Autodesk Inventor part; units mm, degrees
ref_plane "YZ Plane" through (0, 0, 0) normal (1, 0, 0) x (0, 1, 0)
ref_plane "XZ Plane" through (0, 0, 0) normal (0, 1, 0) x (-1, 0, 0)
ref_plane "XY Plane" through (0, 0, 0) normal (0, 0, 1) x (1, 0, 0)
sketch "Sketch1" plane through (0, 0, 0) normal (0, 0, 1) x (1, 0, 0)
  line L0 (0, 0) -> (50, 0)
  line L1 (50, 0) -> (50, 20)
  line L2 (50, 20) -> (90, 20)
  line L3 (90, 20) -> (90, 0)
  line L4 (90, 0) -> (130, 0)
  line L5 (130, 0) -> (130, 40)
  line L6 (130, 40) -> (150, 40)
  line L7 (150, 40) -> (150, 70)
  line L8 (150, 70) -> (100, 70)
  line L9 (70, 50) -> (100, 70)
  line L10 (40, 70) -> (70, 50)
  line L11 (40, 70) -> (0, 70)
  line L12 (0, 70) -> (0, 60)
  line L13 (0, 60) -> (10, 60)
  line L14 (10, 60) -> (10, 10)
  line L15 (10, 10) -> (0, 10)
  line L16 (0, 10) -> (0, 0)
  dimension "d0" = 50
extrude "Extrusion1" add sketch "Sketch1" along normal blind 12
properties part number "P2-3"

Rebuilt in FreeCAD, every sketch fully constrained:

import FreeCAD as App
import Part
import Sketcher

doc = App.newDocument("Part")
body = doc.addObject("PartDesign::Body", "Body")

# Sketch on XY plane
sketch1 = body.newObject("Sketcher::SketchObject", "Sketch")
sketch1.AttachmentSupport = (doc.getObject("XY_Plane"), [""])
sketch1.MapMode = "FlatFace"
sketch1.addGeometry([
    Part.LineSegment(App.Vector(0, 10, 0), App.Vector(0, 0, 0)),  # 0
    Part.LineSegment(App.Vector(0, 0, 0), App.Vector(50, 0, 0)),  # 1
    Part.LineSegment(App.Vector(50, 0, 0), App.Vector(50, 20, 0)),  # 2
    Part.LineSegment(App.Vector(50, 20, 0), App.Vector(90, 20, 0)),  # 3
    Part.LineSegment(App.Vector(90, 20, 0), App.Vector(90, 0, 0)),  # 4
    Part.LineSegment(App.Vector(90, 0, 0), App.Vector(130, 0, 0)),  # 5
    Part.LineSegment(App.Vector(130, 0, 0), App.Vector(130, 40, 0)),  # 6
    Part.LineSegment(App.Vector(130, 40, 0), App.Vector(150, 40, 0)),  # 7
    Part.LineSegment(App.Vector(150, 40, 0), App.Vector(150, 70, 0)),  # 8
    Part.LineSegment(App.Vector(150, 70, 0), App.Vector(100, 70, 0)),  # 9
    Part.LineSegment(App.Vector(100, 70, 0), App.Vector(70, 50, 0)),  # 10
    Part.LineSegment(App.Vector(70, 50, 0), App.Vector(40, 70, 0)),  # 11
    Part.LineSegment(App.Vector(40, 70, 0), App.Vector(0, 70, 0)),  # 12
    Part.LineSegment(App.Vector(0, 70, 0), App.Vector(0, 60, 0)),  # 13
    Part.LineSegment(App.Vector(0, 60, 0), App.Vector(10, 60, 0)),  # 14
    Part.LineSegment(App.Vector(10, 60, 0), App.Vector(10, 10, 0)),  # 15
    Part.LineSegment(App.Vector(10, 10, 0), App.Vector(0, 10, 0)),  # 16
], False)
sketch1.addConstraint([
    Sketcher.Constraint("Coincident", 0, 2, 1, 1),
    Sketcher.Constraint("Coincident", 1, 2, 2, 1),
    Sketcher.Constraint("Coincident", 2, 2, 3, 1),
    Sketcher.Constraint("Coincident", 3, 2, 4, 1),
    Sketcher.Constraint("Coincident", 4, 2, 5, 1),
    Sketcher.Constraint("Coincident", 5, 2, 6, 1),
    Sketcher.Constraint("Coincident", 6, 2, 7, 1),
    Sketcher.Constraint("Coincident", 7, 2, 8, 1),
    Sketcher.Constraint("Coincident", 8, 2, 9, 1),
    Sketcher.Constraint("Coincident", 9, 2, 10, 1),
    Sketcher.Constraint("Coincident", 10, 2, 11, 1),
    Sketcher.Constraint("Coincident", 11, 2, 12, 1),
    Sketcher.Constraint("Coincident", 12, 2, 13, 1),
    Sketcher.Constraint("Coincident", 13, 2, 14, 1),
    Sketcher.Constraint("Coincident", 14, 2, 15, 1),
    Sketcher.Constraint("Coincident", 15, 2, 16, 1),
    Sketcher.Constraint("Coincident", 16, 2, 0, 1),
    Sketcher.Constraint("Vertical", 0),
    Sketcher.Constraint("Horizontal", 1),
    Sketcher.Constraint("Vertical", 2),
    Sketcher.Constraint("Horizontal", 3),
    Sketcher.Constraint("Vertical", 4),
    Sketcher.Constraint("Horizontal", 5),
    Sketcher.Constraint("Vertical", 6),
    Sketcher.Constraint("Horizontal", 7),
    Sketcher.Constraint("Vertical", 8),
    Sketcher.Constraint("Horizontal", 9),
    Sketcher.Constraint("Horizontal", 12),
    Sketcher.Constraint("Vertical", 13),
    Sketcher.Constraint("Horizontal", 14),
    Sketcher.Constraint("Vertical", 15),
    Sketcher.Constraint("Horizontal", 16),
    Sketcher.Constraint("Coincident", 0, 2, -1, 1),
    Sketcher.Constraint("PointOnObject", 4, 2, -1),
    Sketcher.Constraint("PointOnObject", 12, 2, -2),
    Sketcher.Constraint("Horizontal", 9, 2, 11, 2),
    Sketcher.Constraint("Equal", 3, 5),
    Sketcher.Constraint("Equal", 1, 9),
    Sketcher.Constraint("Equal", 5, 12),
    Sketcher.Constraint("Equal", 16, 0),
    Sketcher.Constraint("Equal", 7, 2),
    Sketcher.Constraint("Equal", 12, 6),
    Sketcher.Constraint("Equal", 0, 13),
    Sketcher.Constraint("Equal", 9, 15),
    Sketcher.Constraint("Equal", 10, 11),
    Sketcher.Constraint("DistanceX", 1, 1, 1, 2, 50.0),
    Sketcher.Constraint("DistanceY", -1, 1, 10, 2, 50.0),
    Sketcher.Constraint("DistanceY", 3, 2, 8, 2, 50.0),
    Sketcher.Constraint("DistanceX", 2, 2, 9, 2, 50.0),
    Sketcher.Constraint("DistanceX", 3, 1, 3, 2, 40.0),
])
pad1 = body.newObject("PartDesign::Pad", "Pad")
pad1.Profile = sketch1
pad1.Length = 12

doc.recompute()
